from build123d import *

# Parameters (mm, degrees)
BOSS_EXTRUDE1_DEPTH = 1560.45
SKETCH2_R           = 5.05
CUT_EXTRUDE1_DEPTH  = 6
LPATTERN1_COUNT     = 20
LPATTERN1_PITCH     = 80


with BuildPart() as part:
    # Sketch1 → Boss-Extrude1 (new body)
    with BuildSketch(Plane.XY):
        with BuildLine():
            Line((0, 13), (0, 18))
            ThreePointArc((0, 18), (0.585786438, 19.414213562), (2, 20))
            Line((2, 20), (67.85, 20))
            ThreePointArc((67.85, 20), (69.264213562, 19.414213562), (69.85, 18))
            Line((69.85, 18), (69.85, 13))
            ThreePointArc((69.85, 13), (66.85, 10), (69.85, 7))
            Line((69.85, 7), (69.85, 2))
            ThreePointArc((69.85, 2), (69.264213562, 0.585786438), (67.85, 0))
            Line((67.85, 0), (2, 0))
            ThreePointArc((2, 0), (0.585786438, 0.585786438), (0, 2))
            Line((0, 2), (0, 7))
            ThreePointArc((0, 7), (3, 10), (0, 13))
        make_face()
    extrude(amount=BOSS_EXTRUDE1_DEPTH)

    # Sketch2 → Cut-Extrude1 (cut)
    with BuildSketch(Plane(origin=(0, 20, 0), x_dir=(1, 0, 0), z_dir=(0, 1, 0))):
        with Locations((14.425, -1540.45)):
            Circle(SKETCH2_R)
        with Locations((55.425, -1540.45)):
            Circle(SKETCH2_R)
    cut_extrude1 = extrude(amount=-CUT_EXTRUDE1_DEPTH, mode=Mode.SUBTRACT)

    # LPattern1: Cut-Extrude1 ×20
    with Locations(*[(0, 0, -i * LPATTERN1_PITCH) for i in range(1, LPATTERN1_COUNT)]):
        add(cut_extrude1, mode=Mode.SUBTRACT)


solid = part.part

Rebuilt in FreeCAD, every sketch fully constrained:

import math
import FreeCAD as App
import Part
import Sketcher

V = App.Vector
Q = App.Units.Quantity

doc = App.newDocument("Part")
body = doc.addObject("PartDesign::Body", "Body")

# Sketch on XY plane
sketch1 = body.newObject("Sketcher::SketchObject", "Sketch")
sketch1.AttachmentSupport = (doc.getObject("XY_Plane"), [""])
sketch1.MapMode = "FlatFace"
sketch1.addGeometry([
    Part.LineSegment(V(0, 18, 0), V(0, 13, 0)),  # 0
    Part.ArcOfCircle(Part.Circle(V(0, 10, 0), V(0, 0, 1), 3), math.radians(-90), math.radians(90)),  # 1
    Part.LineSegment(V(0, 7, 0), V(0, 2, 0)),  # 2
    Part.ArcOfCircle(Part.Circle(V(2, 2, 0), V(0, 0, 1), 2), math.radians(-180), math.radians(-90)),  # 3
    Part.LineSegment(V(2, 0, 0), V(67.8, 0, 0)),  # 4
    Part.ArcOfCircle(Part.Circle(V(67.8, 2, 0), V(0, 0, 1), 2), math.radians(-90), math.radians(0)),  # 5
    Part.LineSegment(V(69.8, 2, 0), V(69.8, 7, 0)),  # 6
    Part.ArcOfCircle(Part.Circle(V(69.8, 10, 0), V(0, 0, 1), 3), math.radians(90), math.radians(270)),  # 7
    Part.LineSegment(V(69.8, 13, 0), V(69.8, 18, 0)),  # 8
    Part.ArcOfCircle(Part.Circle(V(67.8, 18, 0), V(0, 0, 1), 2), math.radians(0), math.radians(90)),  # 9
    Part.LineSegment(V(67.8, 20, 0), V(2, 20, 0)),  # 10
    Part.ArcOfCircle(Part.Circle(V(2, 18, 0), V(0, 0, 1), 2), math.radians(90), math.radians(180)),  # 11
], False)
sketch1.addConstraint([
    Sketcher.Constraint("Coincident", 0, 2, 1, 2),
    Sketcher.Constraint("Coincident", 1, 1, 2, 1),
    Sketcher.Constraint("Tangent", 2, 2, 3, 1),
    Sketcher.Constraint("Tangent", 3, 2, 4, 1),
    Sketcher.Constraint("Tangent", 4, 2, 5, 1),
    Sketcher.Constraint("Tangent", 5, 2, 6, 1),
    Sketcher.Constraint("Coincident", 6, 2, 7, 2),
    Sketcher.Constraint("Coincident", 7, 1, 8, 1),
    Sketcher.Constraint("Tangent", 8, 2, 9, 1),
    Sketcher.Constraint("Tangent", 9, 2, 10, 1),
    Sketcher.Constraint("Tangent", 10, 2, 11, 1),
    Sketcher.Constraint("Tangent", 11, 2, 0, 1),
    Sketcher.Constraint("Vertical", 0),
    Sketcher.Constraint("Vertical", 2),
    Sketcher.Constraint("Horizontal", 4),
    Sketcher.Constraint("Vertical", 6),
    Sketcher.Constraint("Vertical", 8),
    Sketcher.Constraint("Horizontal", 10),
    Sketcher.Constraint("Equal", 3, 5),
    Sketcher.Constraint("Equal", 1, 7),
    Sketcher.Constraint("Equal", 5, 9),
    Sketcher.Constraint("Equal", 9, 11),
    Sketcher.Constraint("PointOnObject", 1, 3, -2),
    Sketcher.Constraint("PointOnObject", 0, 2, -2),
    Sketcher.Constraint("PointOnObject", 1, 1, -2),
    Sketcher.Constraint("PointOnObject", 3, 2, -1),
    Sketcher.Constraint("Horizontal", 1, 3, 7, 3),
    Sketcher.Constraint("Vertical", 5, 3, 9, 3),
    Sketcher.Constraint("Vertical", 7, 3, 5, 2),
    Sketcher.Constraint("Equal", 0, 2),
    Sketcher.Constraint("Radius", 1, Q("3 mm")),
    Sketcher.Constraint("Radius", 3, Q("2 mm")),
    Sketcher.Constraint("DistanceY", 0, 2, 0, 1, Q("5 mm")),
    Sketcher.Constraint("DistanceX", 4, 1, 4, 2, Q("65.85 mm")),
])
pad1 = body.newObject("PartDesign::Pad", "Pad")
pad1.Profile = sketch1
pad1.Length = 1560.45

# Sketch on XZ plane
sketch2 = body.newObject("Sketcher::SketchObject", "Sketch001")
sketch2.AttachmentSupport = (doc.getObject("XZ_Plane"), [""])
sketch2.MapMode = "FlatFace"
sketch2.AttachmentOffset = App.Placement(V(0, 0, -20), App.Rotation())
sketch2.addGeometry([
    Part.Circle(V(14, 1540, 0), V(0, 0, 1), 5),
    Part.Circle(V(55, 1540, 0), V(0, 0, 1), 5),
], False)
sketch2.addConstraint([
    Sketcher.Constraint("Equal", 0, 1),
    Sketcher.Constraint("Horizontal", 0, 3, 1, 3),
    Sketcher.Constraint("Diameter", 0, Q("10.1 mm")),
    Sketcher.Constraint("DistanceX", 0, 3, 1, 3, Q("41 mm")),
    Sketcher.Constraint("DistanceY", -1, 1, 0, 3, Q("1540.45 mm")),
    Sketcher.Constraint("DistanceX", -1, 1, 0, 3, Q("14.425 mm")),
])
pocket1 = body.newObject("PartDesign::Pocket", "Pocket")
pocket1.Profile = sketch2
pocket1.Length = 6
pocket1.Reversed = True
doc.recompute()

linearpattern = body.newObject("PartDesign::LinearPattern", "LinearPattern")
linearpattern.Originals = [pocket1]
linearpattern.Direction = (doc.getObject("Z_Axis"), [""])
linearpattern.Mode = "offset"
linearpattern.Offset = 80
linearpattern.Occurrences = 20
linearpattern.Reversed = True
body.Tip = linearpattern

doc.recompute()
